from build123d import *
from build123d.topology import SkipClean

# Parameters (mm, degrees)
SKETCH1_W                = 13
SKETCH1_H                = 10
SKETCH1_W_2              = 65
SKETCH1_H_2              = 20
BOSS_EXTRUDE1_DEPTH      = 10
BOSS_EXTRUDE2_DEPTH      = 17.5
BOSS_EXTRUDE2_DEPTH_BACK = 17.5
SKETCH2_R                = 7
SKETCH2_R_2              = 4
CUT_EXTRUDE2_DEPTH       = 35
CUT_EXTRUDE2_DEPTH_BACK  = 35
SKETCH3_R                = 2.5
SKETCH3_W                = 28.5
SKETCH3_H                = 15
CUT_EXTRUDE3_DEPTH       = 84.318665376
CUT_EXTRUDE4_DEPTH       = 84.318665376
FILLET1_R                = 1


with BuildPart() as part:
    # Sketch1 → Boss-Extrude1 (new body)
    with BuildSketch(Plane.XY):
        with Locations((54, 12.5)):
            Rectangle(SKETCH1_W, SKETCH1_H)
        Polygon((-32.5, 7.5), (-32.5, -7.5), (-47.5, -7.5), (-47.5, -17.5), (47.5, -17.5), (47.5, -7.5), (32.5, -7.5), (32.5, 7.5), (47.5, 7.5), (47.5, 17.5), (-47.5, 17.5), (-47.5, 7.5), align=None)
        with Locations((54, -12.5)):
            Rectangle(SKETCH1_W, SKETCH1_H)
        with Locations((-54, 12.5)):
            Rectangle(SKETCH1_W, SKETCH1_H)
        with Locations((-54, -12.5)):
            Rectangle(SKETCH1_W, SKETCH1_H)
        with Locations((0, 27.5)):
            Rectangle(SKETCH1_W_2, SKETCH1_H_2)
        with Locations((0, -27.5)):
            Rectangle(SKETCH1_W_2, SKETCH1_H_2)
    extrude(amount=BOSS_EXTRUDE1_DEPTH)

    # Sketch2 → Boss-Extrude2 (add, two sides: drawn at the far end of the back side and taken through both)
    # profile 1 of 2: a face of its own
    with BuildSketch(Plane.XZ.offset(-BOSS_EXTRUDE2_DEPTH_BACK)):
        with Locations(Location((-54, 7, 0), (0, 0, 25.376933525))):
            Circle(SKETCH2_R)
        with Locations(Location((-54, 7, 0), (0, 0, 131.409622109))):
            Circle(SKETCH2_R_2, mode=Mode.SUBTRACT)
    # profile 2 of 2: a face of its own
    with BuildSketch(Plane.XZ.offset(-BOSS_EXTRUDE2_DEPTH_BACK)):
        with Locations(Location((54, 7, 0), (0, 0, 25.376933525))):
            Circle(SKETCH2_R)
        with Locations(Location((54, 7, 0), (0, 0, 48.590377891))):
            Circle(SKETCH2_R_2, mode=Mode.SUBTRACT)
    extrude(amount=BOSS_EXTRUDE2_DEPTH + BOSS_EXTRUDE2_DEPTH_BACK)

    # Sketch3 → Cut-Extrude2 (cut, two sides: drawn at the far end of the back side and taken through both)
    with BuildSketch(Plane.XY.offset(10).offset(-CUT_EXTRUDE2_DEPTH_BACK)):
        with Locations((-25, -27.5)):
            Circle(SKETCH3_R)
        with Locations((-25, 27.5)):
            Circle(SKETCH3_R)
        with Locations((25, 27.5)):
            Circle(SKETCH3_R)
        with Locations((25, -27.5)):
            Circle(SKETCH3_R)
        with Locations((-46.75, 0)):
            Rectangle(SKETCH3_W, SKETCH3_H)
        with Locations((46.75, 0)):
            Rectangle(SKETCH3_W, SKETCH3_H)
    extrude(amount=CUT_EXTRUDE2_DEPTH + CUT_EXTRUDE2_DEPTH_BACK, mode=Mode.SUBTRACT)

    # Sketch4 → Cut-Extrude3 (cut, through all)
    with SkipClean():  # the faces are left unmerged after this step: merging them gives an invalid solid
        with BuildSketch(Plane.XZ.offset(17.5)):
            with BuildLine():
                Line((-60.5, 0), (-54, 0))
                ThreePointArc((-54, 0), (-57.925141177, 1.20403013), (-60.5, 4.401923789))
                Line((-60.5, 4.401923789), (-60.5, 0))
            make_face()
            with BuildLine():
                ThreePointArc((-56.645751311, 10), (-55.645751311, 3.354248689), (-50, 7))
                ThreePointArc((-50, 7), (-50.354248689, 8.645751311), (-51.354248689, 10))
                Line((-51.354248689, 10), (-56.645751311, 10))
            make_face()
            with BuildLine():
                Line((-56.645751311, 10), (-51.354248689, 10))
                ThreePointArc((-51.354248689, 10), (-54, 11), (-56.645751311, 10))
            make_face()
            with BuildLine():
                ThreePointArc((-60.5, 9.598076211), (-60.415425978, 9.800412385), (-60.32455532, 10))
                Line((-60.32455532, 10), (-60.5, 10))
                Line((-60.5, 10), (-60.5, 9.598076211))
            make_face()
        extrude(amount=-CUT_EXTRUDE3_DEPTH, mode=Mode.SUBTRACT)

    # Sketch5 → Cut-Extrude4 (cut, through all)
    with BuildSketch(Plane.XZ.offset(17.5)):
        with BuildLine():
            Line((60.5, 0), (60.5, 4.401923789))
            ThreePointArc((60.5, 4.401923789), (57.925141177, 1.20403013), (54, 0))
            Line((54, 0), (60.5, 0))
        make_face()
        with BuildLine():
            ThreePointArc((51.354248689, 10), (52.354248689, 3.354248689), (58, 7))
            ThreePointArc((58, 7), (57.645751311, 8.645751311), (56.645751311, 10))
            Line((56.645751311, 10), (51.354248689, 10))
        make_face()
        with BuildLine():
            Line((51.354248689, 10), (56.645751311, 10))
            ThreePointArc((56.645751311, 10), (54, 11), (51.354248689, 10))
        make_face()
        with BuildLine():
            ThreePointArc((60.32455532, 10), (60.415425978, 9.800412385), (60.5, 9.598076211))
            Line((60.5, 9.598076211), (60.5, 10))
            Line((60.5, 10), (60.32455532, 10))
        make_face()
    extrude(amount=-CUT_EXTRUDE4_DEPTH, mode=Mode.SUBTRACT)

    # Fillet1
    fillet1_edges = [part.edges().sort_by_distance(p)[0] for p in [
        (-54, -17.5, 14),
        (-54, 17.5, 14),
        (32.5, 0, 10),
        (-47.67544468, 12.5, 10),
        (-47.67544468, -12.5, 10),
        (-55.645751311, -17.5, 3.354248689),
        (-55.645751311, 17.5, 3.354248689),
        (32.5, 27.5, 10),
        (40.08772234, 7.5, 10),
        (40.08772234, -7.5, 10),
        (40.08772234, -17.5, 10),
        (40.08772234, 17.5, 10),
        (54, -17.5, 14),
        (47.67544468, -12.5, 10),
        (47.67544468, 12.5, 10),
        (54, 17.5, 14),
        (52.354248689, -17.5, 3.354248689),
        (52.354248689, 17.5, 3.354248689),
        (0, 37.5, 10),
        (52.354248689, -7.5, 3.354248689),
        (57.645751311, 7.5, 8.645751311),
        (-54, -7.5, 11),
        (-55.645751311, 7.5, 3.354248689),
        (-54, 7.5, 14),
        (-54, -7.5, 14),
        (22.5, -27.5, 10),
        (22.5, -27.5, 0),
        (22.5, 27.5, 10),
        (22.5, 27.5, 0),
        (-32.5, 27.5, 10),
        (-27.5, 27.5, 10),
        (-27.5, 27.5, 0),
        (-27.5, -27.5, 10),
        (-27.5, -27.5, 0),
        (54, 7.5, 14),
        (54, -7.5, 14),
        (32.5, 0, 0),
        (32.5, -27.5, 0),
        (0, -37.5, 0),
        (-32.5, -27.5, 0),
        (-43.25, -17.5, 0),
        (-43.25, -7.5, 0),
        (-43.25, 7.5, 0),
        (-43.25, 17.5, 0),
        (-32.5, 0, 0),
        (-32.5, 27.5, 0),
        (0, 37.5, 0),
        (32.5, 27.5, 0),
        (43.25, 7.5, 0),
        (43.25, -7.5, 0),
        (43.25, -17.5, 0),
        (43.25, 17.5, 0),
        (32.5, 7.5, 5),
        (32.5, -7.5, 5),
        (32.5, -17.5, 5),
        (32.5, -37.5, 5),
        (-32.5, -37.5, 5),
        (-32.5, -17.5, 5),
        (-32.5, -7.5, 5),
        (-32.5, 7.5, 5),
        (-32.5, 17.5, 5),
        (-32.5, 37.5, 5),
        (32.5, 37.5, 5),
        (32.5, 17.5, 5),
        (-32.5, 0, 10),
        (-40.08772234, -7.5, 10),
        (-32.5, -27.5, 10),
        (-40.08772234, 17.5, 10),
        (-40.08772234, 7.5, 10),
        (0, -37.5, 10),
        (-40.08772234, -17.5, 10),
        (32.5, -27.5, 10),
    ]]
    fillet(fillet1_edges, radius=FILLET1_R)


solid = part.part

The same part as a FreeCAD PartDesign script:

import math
import FreeCAD as App
import Part
import Sketcher
from FreeCAD import Vector
Q = App.Units.Quantity


def edges_at(feature, points):
    """Names of the edges that pass closest to the given points."""
    edges = feature.Shape.Edges
    near = lambda p: min(range(len(edges)), key=lambda i: edges[i].distToShape(Part.Vertex(*p))[0])
    return sorted({f"Edge{near(p) + 1}" for p in points})


def add_polygon(sketch, points):
    """Adds a closed chain of lines whose ends are joined by coincident constraints."""
    first, n = sketch.GeometryCount, len(points)
    for a, b in zip(points, points[1:] + points[:1]):
        sketch.addGeometry(Part.LineSegment(App.Vector(*a, 0), App.Vector(*b, 0)), False)
    for i in range(n):
        sketch.addConstraint(Sketcher.Constraint("Coincident", first + i, 2, first + (i + 1) % n, 1))

doc = App.newDocument("Part")
body = doc.addObject("PartDesign::Body", "Body")

# Sketch on XY plane
sketch1 = body.newObject("Sketcher::SketchObject", "Sketch")
sketch1.AttachmentSupport = (doc.getObject("XY_Plane"), [""])
sketch1.MapMode = "FlatFace"
add_polygon(sketch1, [(60, 8), (60, 18), (32, 18), (32, 38), (-32, 38), (-32, 18), (-60, 18), (-60, 8), (-32, 8), (-32, -8), (-60, -8), (-60, -18), (-32, -18), (-32, -38), (32, -38), (32, -18), (60, -18), (60, -8), (32, -8), (32, 8)])  # lines 0-19
sketch1.addConstraint(Sketcher.Constraint("Vertical", 0))
sketch1.addConstraint(Sketcher.Constraint("Horizontal", 1))
sketch1.addConstraint(Sketcher.Constraint("Vertical", 2))
sketch1.addConstraint(Sketcher.Constraint("Horizontal", 3))
sketch1.addConstraint(Sketcher.Constraint("Vertical", 4))
sketch1.addConstraint(Sketcher.Constraint("Horizontal", 5))
sketch1.addConstraint(Sketcher.Constraint("Vertical", 6))
sketch1.addConstraint(Sketcher.Constraint("Horizontal", 7))
sketch1.addConstraint(Sketcher.Constraint("Vertical", 8))
sketch1.addConstraint(Sketcher.Constraint("Horizontal", 9))
sketch1.addConstraint(Sketcher.Constraint("Vertical", 10))
sketch1.addConstraint(Sketcher.Constraint("Horizontal", 11))
sketch1.addConstraint(Sketcher.Constraint("Vertical", 12))
sketch1.addConstraint(Sketcher.Constraint("Horizontal", 13))
sketch1.addConstraint(Sketcher.Constraint("Vertical", 14))
sketch1.addConstraint(Sketcher.Constraint("Horizontal", 15))
sketch1.addConstraint(Sketcher.Constraint("Vertical", 16))
sketch1.addConstraint(Sketcher.Constraint("Horizontal", 17))
sketch1.addConstraint(Sketcher.Constraint("Vertical", 18))
sketch1.addConstraint(Sketcher.Constraint("Horizontal", 19))
sketch1.addConstraint(Sketcher.Constraint("Symmetric", 0, 2, 10, 2, -1, 1))
sketch1.addConstraint(Sketcher.Constraint("Symmetric", 2, 2, 12, 2, -1, 1))
sketch1.addConstraint(Sketcher.Constraint("Symmetric", 4, 2, 14, 2, -1, 1))
sketch1.addConstraint(Sketcher.Constraint("Symmetric", 6, 2, 16, 2, -1, 1))
sketch1.addConstraint(Sketcher.Constraint("Symmetric", 8, 2, 18, 2, -1, 1))
sketch1.addConstraint(Sketcher.Constraint("Symmetric", 1, 2, 4, 2, -2))
sketch1.addConstraint(Sketcher.Constraint("Symmetric", 9, 2, 16, 2, -2))
sketch1.addConstraint(Sketcher.Constraint("Vertical", 4, 2, 7, 2))
sketch1.addConstraint(Sketcher.Constraint("DistanceX", 1, 2, 1, 1, Q("28 mm")))
sketch1.addConstraint(Sketcher.Constraint("DistanceX", 3, 2, 3, 1, Q("65 mm")))
sketch1.addConstraint(Sketcher.Constraint("DistanceY", 0, 1, 0, 2, Q("10 mm")))
sketch1.addConstraint(Sketcher.Constraint("DistanceY", 2, 1, 2, 2, Q("20 mm")))
sketch1.addConstraint(Sketcher.Constraint("DistanceY", 8, 2, 8, 1, Q("15 mm")))
pad1 = body.newObject("PartDesign::Pad", "Pad")
pad1.Profile = sketch1
pad1.Length = 10

# Sketch on XZ plane
sketch2 = body.newObject("Sketcher::SketchObject", "Sketch001")
sketch2.AttachmentSupport = (doc.getObject("XZ_Plane"), [""])
sketch2.MapMode = "FlatFace"
sketch2.addGeometry(Part.Circle(Vector(-54, 7, 0), Vector(0, 0, 1), 7), False)
sketch2.addGeometry(Part.Circle(Vector(-54, 7, 0), Vector(0, 0, 1), 4), False)
sketch2.addGeometry(Part.Circle(Vector(54, 7, 0), Vector(0, 0, 1), 7), False)
sketch2.addGeometry(Part.Circle(Vector(54, 7, 0), Vector(0, 0, 1), 4), False)
sketch2.addConstraint(Sketcher.Constraint("Coincident", 1, 3, 0, 3))
sketch2.addConstraint(Sketcher.Constraint("Coincident", 3, 3, 2, 3))
sketch2.addConstraint(Sketcher.Constraint("Equal", 0, 2))
sketch2.addConstraint(Sketcher.Constraint("Equal", 1, 3))
sketch2.addConstraint(Sketcher.Constraint("Symmetric", 0, 3, 2, 3, -2))
sketch2.addConstraint(Sketcher.Constraint("Diameter", 0, Q("14 mm")))
sketch2.addConstraint(Sketcher.Constraint("Diameter", 1, Q("8 mm")))
sketch2.addConstraint(Sketcher.Constraint("DistanceX", 0, 3, -1, 1, Q("54 mm")))
sketch2.addConstraint(Sketcher.Constraint("DistanceY", -1, 1, 0, 3, Q("7 mm")))
pad2 = body.newObject("PartDesign::Pad", "Pad001")
pad2.Profile = sketch2
pad2.Type = "TwoLengths"
pad2.Length = 17.5
pad2.Length2 = 17.5

# Sketch on XY plane
sketch3 = body.newObject("Sketcher::SketchObject", "Sketch002")
sketch3.AttachmentSupport = (doc.getObject("XY_Plane"), [""])
sketch3.MapMode = "FlatFace"
sketch3.AttachmentOffset = App.Placement(Vector(0, 0, 10), App.Rotation())
sketch3.addGeometry(Part.Circle(Vector(-25, -27.5, 0), Vector(0, 0, 1), 2.5), False)  # 0
sketch3.addGeometry(Part.Circle(Vector(-25, 27.5, 0), Vector(0, 0, 1), 2.5), False)  # 1
sketch3.addGeometry(Part.Circle(Vector(25, 27.5, 0), Vector(0, 0, 1), 2.5), False)  # 2
sketch3.addGeometry(Part.Circle(Vector(25, -27.5, 0), Vector(0, 0, 1), 2.5), False)  # 3
add_polygon(sketch3, [(-61, 7.5), (-61, -7.5), (-32.5, -7.5), (-32.5, 7.5)])  # lines 4-7
add_polygon(sketch3, [(32.5, 7.5), (32.5, -7.5), (61, -7.5), (61, 7.5)])  # lines 8-11
sketch3.addConstraint(Sketcher.Constraint("Vertical", 4))
sketch3.addConstraint(Sketcher.Constraint("Horizontal", 5))
sketch3.addConstraint(Sketcher.Constraint("Vertical", 6))
sketch3.addConstraint(Sketcher.Constraint("Horizontal", 7))
sketch3.addConstraint(Sketcher.Constraint("Vertical", 8))
sketch3.addConstraint(Sketcher.Constraint("Horizontal", 9))
sketch3.addConstraint(Sketcher.Constraint("Vertical", 10))
sketch3.addConstraint(Sketcher.Constraint("Horizontal", 11))
sketch3.addConstraint(Sketcher.Constraint("Equal", 0, 1))
sketch3.addConstraint(Sketcher.Constraint("Equal", 1, 2))
sketch3.addConstraint(Sketcher.Constraint("Equal", 2, 3))
sketch3.addConstraint(Sketcher.Constraint("Symmetric", 0, 3, 2, 3, -1, 1))
sketch3.addConstraint(Sketcher.Constraint("Symmetric", 1, 3, 3, 3, -1, 1))
sketch3.addConstraint(Sketcher.Constraint("Symmetric", 6, 2, 8, 2, -1, 1))
sketch3.addConstraint(Sketcher.Constraint("Symmetric", 4, 2, 10, 2, -1, 1))
sketch3.addConstraint(Sketcher.Constraint("Symmetric", 1, 3, 2, 3, -2))
sketch3.addConstraint(Sketcher.Constraint("Horizontal", 5, 2, 8, 2))
sketch3.addConstraint(Sketcher.Constraint("Diameter", 0, Q("5 mm")))
sketch3.addConstraint(Sketcher.Constraint("DistanceY", 4, 2, 4, 1, Q("15 mm")))
sketch3.addConstraint(Sketcher.Constraint("DistanceX", 5, 1, 5, 2, Q("28.5 mm")))
sketch3.addConstraint(Sketcher.Constraint("DistanceX", 0, 3, -1, 1, Q("25 mm")))
sketch3.addConstraint(Sketcher.Constraint("DistanceX", 4, 2, -1, 1, Q("61 mm")))
sketch3.addConstraint(Sketcher.Constraint("DistanceY", 0, 3, 1, 3, Q("55 mm")))
pocket1 = body.newObject("PartDesign::Pocket", "Pocket")
pocket1.Profile = sketch3
pocket1.Type = "ThroughAll"
pocket1.Midplane = True

# Sketch on XZ plane
sketch4 = body.newObject("Sketcher::SketchObject", "Sketch003")
sketch4.AttachmentSupport = (doc.getObject("XZ_Plane"), [""])
sketch4.MapMode = "FlatFace"
sketch4.AttachmentOffset = App.Placement(Vector(0, 0, 17.5), App.Rotation())
sketch4.addGeometry(Part.LineSegment(Vector(-60.5, 0, 0), Vector(-54, 0, 0)), False)
sketch4.addGeometry(Part.ArcOfCircle(Part.Circle(Vector(-54, 7, 0), Vector(0, 0, 1), 7), math.radians(-158), math.radians(-90)), False)
sketch4.addGeometry(Part.LineSegment(Vector(-60.5, 4.4, 0), Vector(-60.5, 0, 0)), False)
sketch4.addGeometry(Part.ArcOfCircle(Part.Circle(Vector(-54, 7, 0), Vector(0, 0, 1), 4), math.radians(131), math.radians(360)), False)
sketch4.addGeometry(Part.ArcOfCircle(Part.Circle(Vector(-54, 7, 0), Vector(0, 0, 1), 4), math.radians(0), math.radians(49)), False)
sketch4.addGeometry(Part.LineSegment(Vector(-51.35, 10, 0), Vector(-56.65, 10, 0)), False)
sketch4.addGeometry(Part.LineSegment(Vector(-56.65, 10, 0), Vector(-51.35, 10, 0)), False)
sketch4.addGeometry(Part.ArcOfCircle(Part.Circle(Vector(-54, 7, 0), Vector(0, 0, 1), 4), math.radians(49), math.radians(131)), False)
sketch4.addGeometry(Part.ArcOfCircle(Part.Circle(Vector(-54, 7, 0), Vector(0, 0, 1), 7), math.radians(154.62), math.radians(158.21)), False)
sketch4.addGeometry(Part.LineSegment(Vector(-60.32, 10, 0), Vector(-60.5, 10, 0)), False)
sketch4.addGeometry(Part.LineSegment(Vector(-60.5, 10, 0), Vector(-60.5, 9.6, 0)), False)
sketch4.addConstraint(Sketcher.Constraint("Tangent", 0, 2, 1, 2))
sketch4.addConstraint(Sketcher.Constraint("Coincident", 1, 1, 2, 1))
sketch4.addConstraint(Sketcher.Constraint("Coincident", 2, 2, 0, 1))
sketch4.addConstraint(Sketcher.Constraint("Tangent", 3, 2, 4, 1))
sketch4.addConstraint(Sketcher.Constraint("Coincident", 4, 2, 5, 1))
sketch4.addConstraint(Sketcher.Constraint("Coincident", 5, 2, 3, 1))
sketch4.addConstraint(Sketcher.Constraint("Coincident", 6, 1, 7, 2))
sketch4.addConstraint(Sketcher.Constraint("Coincident", 7, 1, 6, 2))
sketch4.addConstraint(Sketcher.Constraint("Coincident", 8, 1, 9, 1))
sketch4.addConstraint(Sketcher.Constraint("Coincident", 9, 2, 10, 1))
sketch4.addConstraint(Sketcher.Constraint("Coincident", 10, 2, 8, 2))
sketch4.addConstraint(Sketcher.Constraint("Horizontal", 0))
sketch4.addConstraint(Sketcher.Constraint("Vertical", 2))
sketch4.addConstraint(Sketcher.Constraint("Horizontal", 5))
sketch4.addConstraint(Sketcher.Constraint("Horizontal", 6))
sketch4.addConstraint(Sketcher.Constraint("Horizontal", 9))
sketch4.addConstraint(Sketcher.Constraint("Vertical", 10))
sketch4.addConstraint(Sketcher.Constraint("Coincident", 3, 3, 1, 3))
sketch4.addConstraint(Sketcher.Constraint("Coincident", 7, 3, 1, 3))
sketch4.addConstraint(Sketcher.Constraint("Coincident", 8, 3, 1, 3))
sketch4.addConstraint(Sketcher.Constraint("Coincident", 6, 1, 5, 2))
sketch4.addConstraint(Sketcher.Constraint("Equal", 3, 4))
sketch4.addConstraint(Sketcher.Constraint("Equal", 1, 8))
sketch4.addConstraint(Sketcher.Constraint("PointOnObject", 0, 2, -1))
sketch4.addConstraint(Sketcher.Constraint("Horizontal", 8, 3, 3, 2))
sketch4.addConstraint(Sketcher.Constraint("Horizontal", 7, 1, 8, 1))
sketch4.addConstraint(Sketcher.Constraint("Vertical", 2, 2, 9, 2))
sketch4.addConstraint(Sketcher.Constraint("Radius", 1, Q("7 mm")))
sketch4.addConstraint(Sketcher.Constraint("Radius", 3, Q("4 mm")))
sketch4.addConstraint(Sketcher.Constraint("DistanceX", 0, 1, 0, 2, Q("6.5 mm")))
sketch4.addConstraint(Sketcher.Constraint("DistanceX", 1, 3, -1, 1, Q("54 mm")))
sketch4.addConstraint(Sketcher.Constraint("DistanceY", -1, 1, 4, 2, Q("10 mm")))
pocket2 = body.newObject("PartDesign::Pocket", "Pocket001")
pocket2.Profile = sketch4
pocket2.Type = "ThroughAll"

# Sketch on XZ plane
sketch5 = body.newObject("Sketcher::SketchObject", "Sketch004")
sketch5.AttachmentSupport = (doc.getObject("XZ_Plane"), [""])
sketch5.MapMode = "FlatFace"
sketch5.AttachmentOffset = App.Placement(Vector(0, 0, 17.5), App.Rotation())
sketch5.addGeometry(Part.LineSegment(Vector(60.5, 0, 0), Vector(60.5, 4.4, 0)), False)
sketch5.addGeometry(Part.ArcOfCircle(Part.Circle(Vector(54, 7, 0), Vector(0, 0, 1), 7), math.radians(-90), math.radians(-22)), False)
sketch5.addGeometry(Part.LineSegment(Vector(54, 0, 0), Vector(60.5, 0, 0)), False)
sketch5.addGeometry(Part.ArcOfCircle(Part.Circle(Vector(54, 7, 0), Vector(0, 0, 1), 4), math.radians(131), math.radians(360)), False)
sketch5.addGeometry(Part.ArcOfCircle(Part.Circle(Vector(54, 7, 0), Vector(0, 0, 1), 4), math.radians(0), math.radians(49)), False)
sketch5.addGeometry(Part.ArcOfCircle(Part.Circle(Vector(54, 7, 0), Vector(0, 0, 1), 4), math.radians(49), math.radians(131)), False)
sketch5.addGeometry(Part.ArcOfCircle(Part.Circle(Vector(54, 7, 0), Vector(0, 0, 1), 7), math.radians(21.79), math.radians(25.38)), False)
sketch5.addGeometry(Part.LineSegment(Vector(60.5, 9.6, 0), Vector(60.5, 10, 0)), False)
sketch5.addGeometry(Part.LineSegment(Vector(60.5, 10, 0), Vector(60.32, 10, 0)), False)
sketch5.addConstraint(Sketcher.Constraint("Coincident", 0, 2, 1, 2))
sketch5.addConstraint(Sketcher.Constraint("Tangent", 1, 1, 2, 1))
sketch5.addConstraint(Sketcher.Constraint("Coincident", 2, 2, 0, 1))
sketch5.addConstraint(Sketcher.Constraint("Tangent", 3, 2, 4, 1))
sketch5.addConstraint(Sketcher.Constraint("Tangent", 4, 2, 5, 1))
sketch5.addConstraint(Sketcher.Constraint("Tangent", 5, 2, 3, 1))
sketch5.addConstraint(Sketcher.Constraint("Coincident", 6, 1, 7, 1))
sketch5.addConstraint(Sketcher.Constraint("Coincident", 7, 2, 8, 1))
sketch5.addConstraint(Sketcher.Constraint("Coincident", 8, 2, 6, 2))
sketch5.addConstraint(Sketcher.Constraint("Vertical", 0))
sketch5.addConstraint(Sketcher.Constraint("Horizontal", 2))
sketch5.addConstraint(Sketcher.Constraint("Vertical", 7))
sketch5.addConstraint(Sketcher.Constraint("Horizontal", 8))
sketch5.addConstraint(Sketcher.Constraint("Coincident", 3, 3, 1, 3))
sketch5.addConstraint(Sketcher.Constraint("Coincident", 6, 3, 1, 3))
sketch5.addConstraint(Sketcher.Constraint("Equal", 1, 6))
sketch5.addConstraint(Sketcher.Constraint("PointOnObject", 1, 1, -1))
sketch5.addConstraint(Sketcher.Constraint("Horizontal", 6, 3, 3, 2))
sketch5.addConstraint(Sketcher.Constraint("Horizontal", 4, 2, 5, 2))
sketch5.addConstraint(Sketcher.Constraint("Horizontal", 5, 2, 7, 2))
sketch5.addConstraint(Sketcher.Constraint("Vertical", 2, 2, 6, 1))
sketch5.addConstraint(Sketcher.Constraint("Radius", 1, Q("7 mm")))
sketch5.addConstraint(Sketcher.Constraint("Radius", 3, Q("4 mm")))
sketch5.addConstraint(Sketcher.Constraint("DistanceX", 2, 1, 2, 2, Q("6.5 mm")))
sketch5.addConstraint(Sketcher.Constraint("DistanceX", -1, 1, 1, 3, Q("54 mm")))
sketch5.addConstraint(Sketcher.Constraint("DistanceY", -1, 1, 4, 2, Q("10 mm")))
pocket3 = body.newObject("PartDesign::Pocket", "Pocket002")
pocket3.Profile = sketch5
pocket3.Type = "ThroughAll"
doc.recompute()

fillet = body.newObject("PartDesign::Fillet", "Fillet")
fillet.Base = (pocket3, edges_at(pocket3, [
    (-54, -17.5, 14),
    (-54, 17.5, 14),
    (32.5, 0, 10),
    (-47.675, 12.5, 10),
    (-47.675, -12.5, 10),
    (-55.646, -17.5, 3.354),
    (-55.646, 17.5, 3.354),
    (32.5, 27.5, 10),
    (40.088, 7.5, 10),
    (40.088, -7.5, 10),
    (40.088, -17.5, 10),
    (40.088, 17.5, 10),
    (54, -17.5, 14),
    (47.675, -12.5, 10),
    (47.675, 12.5, 10),
    (54, 17.5, 14),
    (52.354, -17.5, 3.354),
    (52.354, 17.5, 3.354),
    (0, 37.5, 10),
    (52.354, -7.5, 3.354),
    (57.646, 7.5, 8.646),
    (-54, -7.5, 11),
    (-55.646, 7.5, 3.354),
    (-54, 7.5, 14),
    (-54, -7.5, 14),
    (22.5, -27.5, 10),
    (22.5, -27.5, 0),
    (22.5, 27.5, 10),
    (22.5, 27.5, 0),
    (-32.5, 27.5, 10),
    (-27.5, 27.5, 10),
    (-27.5, 27.5, 0),
    (-27.5, -27.5, 10),
    (-27.5, -27.5, 0),
    (54, 7.5, 14),
    (54, -7.5, 14),
    (32.5, 0, 0),
    (32.5, -27.5, 0),
    (0, -37.5, 0),
    (-32.5, -27.5, 0),
    (-43.25, -17.5, 0),
    (-43.25, -7.5, 0),
    (-43.25, 7.5, 0),
    (-43.25, 17.5, 0),
    (-32.5, 0, 0),
    (-32.5, 27.5, 0),
    (0, 37.5, 0),
    (32.5, 27.5, 0),
    (43.25, 7.5, 0),
    (43.25, -7.5, 0),
    (43.25, -17.5, 0),
    (43.25, 17.5, 0),
    (32.5, 7.5, 5),
    (32.5, -7.5, 5),
    (32.5, -17.5, 5),
    (32.5, -37.5, 5),
    (-32.5, -37.5, 5),
    (-32.5, -17.5, 5),
    (-32.5, -7.5, 5),
    (-32.5, 7.5, 5),
    (-32.5, 17.5, 5),
    (-32.5, 37.5, 5),
    (32.5, 37.5, 5),
    (32.5, 17.5, 5),
    (-32.5, 0, 10),
    (-40.088, -7.5, 10),
    (-32.5, -27.5, 10),
    (-40.088, 17.5, 10),
    (-40.088, 7.5, 10),
    (0, -37.5, 10),
    (-40.088, -17.5, 10),
    (32.5, -27.5, 10),
]))
fillet.Radius = 1

doc.recompute()
